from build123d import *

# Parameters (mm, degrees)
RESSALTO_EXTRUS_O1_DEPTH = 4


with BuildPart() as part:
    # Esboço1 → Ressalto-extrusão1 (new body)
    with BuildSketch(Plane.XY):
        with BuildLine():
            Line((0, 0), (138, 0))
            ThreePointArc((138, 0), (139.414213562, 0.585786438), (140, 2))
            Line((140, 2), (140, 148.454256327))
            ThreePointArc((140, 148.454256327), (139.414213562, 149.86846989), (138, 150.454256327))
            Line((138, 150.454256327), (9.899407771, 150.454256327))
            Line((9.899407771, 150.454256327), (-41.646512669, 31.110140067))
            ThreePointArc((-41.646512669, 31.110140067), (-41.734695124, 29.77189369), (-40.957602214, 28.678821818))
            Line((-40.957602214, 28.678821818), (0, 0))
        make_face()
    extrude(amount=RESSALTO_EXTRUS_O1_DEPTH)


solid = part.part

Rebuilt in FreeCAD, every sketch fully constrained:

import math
import FreeCAD as App
import Part
import Sketcher
Q = App.Units.Quantity

doc = App.newDocument("Part")
body = doc.addObject("PartDesign::Body", "Body")

sketch1 = doc.addObject("Sketcher::SketchObject", "Sketch")
body.addObject(sketch1)
sketch1.AttachmentSupport = (doc.XY_Plane, [""])
sketch1.MapMode = "FlatFace"
sketch1.addGeometry(Part.LineSegment(App.Vector(0, 0, 0), App.Vector(138, 0, 0)), False)
sketch1.addGeometry(Part.ArcOfCircle(Part.Circle(App.Vector(138, 2, 0), App.Vector(0, 0, 1), 2), math.radians(-90), math.radians(0)), False)
sketch1.addGeometry(Part.LineSegment(App.Vector(140, 2, 0), App.Vector(140, 148.5, 0)), False)
sketch1.addGeometry(Part.ArcOfCircle(Part.Circle(App.Vector(138, 148.5, 0), App.Vector(0, 0, 1), 2), math.radians(0), math.radians(90)), False)
sketch1.addGeometry(Part.LineSegment(App.Vector(138, 150.5, 0), App.Vector(9.9, 150.5, 0)), False)
sketch1.addGeometry(Part.LineSegment(App.Vector(9.9, 150.5, 0), App.Vector(-41.6, 31.1, 0)), False)
sketch1.addGeometry(Part.ArcOfCircle(Part.Circle(App.Vector(-39.8, 30.3, 0), App.Vector(0, 0, 1), 2), math.radians(157), math.radians(235)), False)
sketch1.addGeometry(Part.LineSegment(App.Vector(-41, 28.7, 0), App.Vector(0, 0, 0)), False)
sketch1.addConstraint(Sketcher.Constraint("Tangent", 0, 2, 1, 1))
sketch1.addConstraint(Sketcher.Constraint("Tangent", 1, 2, 2, 1))
sketch1.addConstraint(Sketcher.Constraint("Tangent", 2, 2, 3, 1))
sketch1.addConstraint(Sketcher.Constraint("Tangent", 3, 2, 4, 1))
sketch1.addConstraint(Sketcher.Constraint("Coincident", 4, 2, 5, 1))
sketch1.addConstraint(Sketcher.Constraint("Tangent", 5, 2, 6, 1))
sketch1.addConstraint(Sketcher.Constraint("Tangent", 6, 2, 7, 1))
sketch1.addConstraint(Sketcher.Constraint("Coincident", 7, 2, 0, 1))
sketch1.addConstraint(Sketcher.Constraint("Horizontal", 0))
sketch1.addConstraint(Sketcher.Constraint("Vertical", 2))
sketch1.addConstraint(Sketcher.Constraint("Horizontal", 4))
sketch1.addConstraint(Sketcher.Constraint("Coincident", 7, 2, -1, 1))
sketch1.addConstraint(Sketcher.Constraint("Equal", 1, 3))
sketch1.addConstraint(Sketcher.Constraint("Equal", 3, 6))
sketch1.addConstraint(Sketcher.Constraint("Radius", 1, 2.0))
sketch1.addConstraint(Sketcher.Constraint("DistanceX", 0, 1, 0, 2, 138.0))
sketch1.addConstraint(Sketcher.Constraint("Angle", 7, Q("-35 deg")))
sketch1.addConstraint(Sketcher.Constraint("Distance", 5, 130.0))
sketch1.addConstraint(Sketcher.Constraint("Distance", 7, 50.0))
sketch1.addConstraint(Sketcher.Constraint("Angle", 5, Q("-113.36 deg")))
pad1 = doc.addObject("PartDesign::Pad", "Pad")
body.addObject(pad1)
pad1.Profile = sketch1
pad1.Length = 4

doc.recompute()
